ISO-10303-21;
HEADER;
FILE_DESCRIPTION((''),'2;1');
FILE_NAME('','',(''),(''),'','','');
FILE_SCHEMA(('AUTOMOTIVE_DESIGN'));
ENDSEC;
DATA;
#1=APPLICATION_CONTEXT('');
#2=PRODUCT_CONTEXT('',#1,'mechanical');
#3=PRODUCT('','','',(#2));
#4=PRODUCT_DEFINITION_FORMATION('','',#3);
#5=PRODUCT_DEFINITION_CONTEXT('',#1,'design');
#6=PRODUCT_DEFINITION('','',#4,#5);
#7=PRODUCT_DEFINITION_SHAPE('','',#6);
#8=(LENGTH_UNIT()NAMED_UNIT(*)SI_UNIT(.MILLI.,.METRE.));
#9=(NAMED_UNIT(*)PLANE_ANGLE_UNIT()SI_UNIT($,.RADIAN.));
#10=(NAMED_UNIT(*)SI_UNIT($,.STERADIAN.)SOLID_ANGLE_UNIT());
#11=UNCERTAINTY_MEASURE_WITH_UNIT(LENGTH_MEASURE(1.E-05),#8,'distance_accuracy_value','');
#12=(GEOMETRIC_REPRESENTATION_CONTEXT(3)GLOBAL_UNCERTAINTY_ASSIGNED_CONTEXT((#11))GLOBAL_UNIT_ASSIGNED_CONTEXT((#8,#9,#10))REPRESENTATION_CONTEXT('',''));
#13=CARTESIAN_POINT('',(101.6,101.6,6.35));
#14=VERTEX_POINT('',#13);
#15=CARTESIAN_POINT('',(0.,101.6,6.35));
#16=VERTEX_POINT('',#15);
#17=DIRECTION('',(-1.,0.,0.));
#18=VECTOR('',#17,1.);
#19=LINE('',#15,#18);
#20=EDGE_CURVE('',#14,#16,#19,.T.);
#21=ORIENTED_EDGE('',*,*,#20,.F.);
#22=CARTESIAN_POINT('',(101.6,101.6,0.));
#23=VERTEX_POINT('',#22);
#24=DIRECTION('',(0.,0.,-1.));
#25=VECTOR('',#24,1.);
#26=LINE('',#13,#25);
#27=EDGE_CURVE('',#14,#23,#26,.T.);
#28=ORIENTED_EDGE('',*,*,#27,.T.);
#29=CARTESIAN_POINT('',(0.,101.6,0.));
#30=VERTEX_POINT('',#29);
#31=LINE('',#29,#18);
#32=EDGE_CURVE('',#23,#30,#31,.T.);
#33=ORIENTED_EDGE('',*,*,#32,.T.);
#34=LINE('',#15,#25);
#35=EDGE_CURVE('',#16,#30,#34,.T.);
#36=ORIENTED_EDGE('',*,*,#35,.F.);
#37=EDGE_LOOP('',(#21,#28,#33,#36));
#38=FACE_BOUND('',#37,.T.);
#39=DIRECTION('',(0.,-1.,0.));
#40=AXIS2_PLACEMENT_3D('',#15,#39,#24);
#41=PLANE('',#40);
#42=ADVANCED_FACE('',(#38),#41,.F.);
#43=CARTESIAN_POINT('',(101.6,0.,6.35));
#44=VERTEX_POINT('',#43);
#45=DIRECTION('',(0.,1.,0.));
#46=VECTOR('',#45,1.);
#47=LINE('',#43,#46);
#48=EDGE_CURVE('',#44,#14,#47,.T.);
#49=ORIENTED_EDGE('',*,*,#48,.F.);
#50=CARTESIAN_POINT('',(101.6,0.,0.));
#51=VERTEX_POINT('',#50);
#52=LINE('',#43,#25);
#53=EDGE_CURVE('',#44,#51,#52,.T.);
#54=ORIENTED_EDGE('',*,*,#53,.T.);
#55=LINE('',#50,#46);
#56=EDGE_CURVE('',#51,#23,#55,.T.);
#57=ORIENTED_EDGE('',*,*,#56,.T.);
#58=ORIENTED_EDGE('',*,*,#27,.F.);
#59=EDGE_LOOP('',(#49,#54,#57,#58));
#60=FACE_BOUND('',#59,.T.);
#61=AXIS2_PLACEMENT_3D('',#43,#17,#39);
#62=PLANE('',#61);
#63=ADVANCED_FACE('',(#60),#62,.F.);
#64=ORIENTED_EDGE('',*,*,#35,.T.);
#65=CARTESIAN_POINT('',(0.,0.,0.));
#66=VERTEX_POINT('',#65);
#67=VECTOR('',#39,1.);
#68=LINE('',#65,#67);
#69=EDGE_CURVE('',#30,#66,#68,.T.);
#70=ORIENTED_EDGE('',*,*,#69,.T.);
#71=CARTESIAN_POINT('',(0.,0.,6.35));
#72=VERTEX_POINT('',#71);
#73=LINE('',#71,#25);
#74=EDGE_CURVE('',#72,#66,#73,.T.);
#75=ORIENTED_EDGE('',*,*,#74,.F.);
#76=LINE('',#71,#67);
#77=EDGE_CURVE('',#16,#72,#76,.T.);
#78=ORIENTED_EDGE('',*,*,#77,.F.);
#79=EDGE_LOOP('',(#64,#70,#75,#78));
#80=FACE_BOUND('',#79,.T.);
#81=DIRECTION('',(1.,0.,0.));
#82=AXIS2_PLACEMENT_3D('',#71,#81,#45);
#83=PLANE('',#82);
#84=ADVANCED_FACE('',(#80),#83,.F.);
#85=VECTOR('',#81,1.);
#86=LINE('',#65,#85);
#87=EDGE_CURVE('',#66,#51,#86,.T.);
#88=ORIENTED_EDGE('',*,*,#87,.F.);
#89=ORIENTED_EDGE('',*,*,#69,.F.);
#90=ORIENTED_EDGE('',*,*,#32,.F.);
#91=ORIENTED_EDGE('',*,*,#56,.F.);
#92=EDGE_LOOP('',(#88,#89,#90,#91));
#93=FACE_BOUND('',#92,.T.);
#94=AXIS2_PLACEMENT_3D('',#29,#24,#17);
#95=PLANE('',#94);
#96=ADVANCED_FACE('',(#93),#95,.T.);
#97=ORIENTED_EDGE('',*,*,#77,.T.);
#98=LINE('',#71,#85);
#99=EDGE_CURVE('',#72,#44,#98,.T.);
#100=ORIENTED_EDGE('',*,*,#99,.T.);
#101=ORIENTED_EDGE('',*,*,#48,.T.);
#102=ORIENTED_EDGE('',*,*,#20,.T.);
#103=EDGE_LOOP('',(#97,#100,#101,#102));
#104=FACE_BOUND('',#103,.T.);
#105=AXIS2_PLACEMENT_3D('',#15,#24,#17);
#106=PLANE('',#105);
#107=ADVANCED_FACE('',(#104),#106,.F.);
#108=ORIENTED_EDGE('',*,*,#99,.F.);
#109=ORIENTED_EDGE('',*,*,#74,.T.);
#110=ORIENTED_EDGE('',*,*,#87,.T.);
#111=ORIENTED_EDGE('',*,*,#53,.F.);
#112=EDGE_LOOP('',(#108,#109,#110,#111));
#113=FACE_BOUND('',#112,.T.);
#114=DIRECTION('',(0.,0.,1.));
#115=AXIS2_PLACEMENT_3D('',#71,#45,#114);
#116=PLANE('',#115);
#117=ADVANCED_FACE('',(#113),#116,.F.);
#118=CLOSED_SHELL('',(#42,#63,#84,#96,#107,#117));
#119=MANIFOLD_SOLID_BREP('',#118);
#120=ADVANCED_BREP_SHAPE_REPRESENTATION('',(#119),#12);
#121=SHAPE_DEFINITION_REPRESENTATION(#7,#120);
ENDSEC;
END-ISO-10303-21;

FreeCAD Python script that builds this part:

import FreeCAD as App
import Part
import Sketcher

V = App.Vector
Q = App.Units.Quantity


def add_polygon(sketch, points):
    """Adds a closed chain of lines whose ends are joined by coincident constraints."""
    first, n = sketch.GeometryCount, len(points)
    for a, b in zip(points, points[1:] + points[:1]):
        sketch.addGeometry(Part.LineSegment(App.Vector(*a, 0), App.Vector(*b, 0)), False)
    for i in range(n):
        sketch.addConstraint(Sketcher.Constraint("Coincident", first + i, 2, first + (i + 1) % n, 1))

doc = App.newDocument("Part")
body = doc.addObject("PartDesign::Body", "Body")

sketch1 = body.newObject("Sketcher::SketchObject", "Sketch")
sketch1.AttachmentSupport = (doc.getObject("XY_Plane"), [""])
sketch1.MapMode = "FlatFace"
add_polygon(sketch1, [(0, 102), (0, 0), (102, 0), (102, 102)])
sketch1.addConstraint(Sketcher.Constraint("Vertical", 0))
sketch1.addConstraint(Sketcher.Constraint("Horizontal", 1))
sketch1.addConstraint(Sketcher.Constraint("Vertical", 2))
sketch1.addConstraint(Sketcher.Constraint("Horizontal", 3))
sketch1.addConstraint(Sketcher.Constraint("Coincident", 0, 2, -1, 1))
sketch1.addConstraint(Sketcher.Constraint("Equal", 3, 0))
sketch1.addConstraint(Sketcher.Constraint("DistanceX", 1, 1, 1, 2, Q("4 in")))
pad1 = body.newObject("PartDesign::Pad", "Pad")
pad1.Profile = sketch1
pad1.Length = Q("0.25 in")

doc.recompute()
